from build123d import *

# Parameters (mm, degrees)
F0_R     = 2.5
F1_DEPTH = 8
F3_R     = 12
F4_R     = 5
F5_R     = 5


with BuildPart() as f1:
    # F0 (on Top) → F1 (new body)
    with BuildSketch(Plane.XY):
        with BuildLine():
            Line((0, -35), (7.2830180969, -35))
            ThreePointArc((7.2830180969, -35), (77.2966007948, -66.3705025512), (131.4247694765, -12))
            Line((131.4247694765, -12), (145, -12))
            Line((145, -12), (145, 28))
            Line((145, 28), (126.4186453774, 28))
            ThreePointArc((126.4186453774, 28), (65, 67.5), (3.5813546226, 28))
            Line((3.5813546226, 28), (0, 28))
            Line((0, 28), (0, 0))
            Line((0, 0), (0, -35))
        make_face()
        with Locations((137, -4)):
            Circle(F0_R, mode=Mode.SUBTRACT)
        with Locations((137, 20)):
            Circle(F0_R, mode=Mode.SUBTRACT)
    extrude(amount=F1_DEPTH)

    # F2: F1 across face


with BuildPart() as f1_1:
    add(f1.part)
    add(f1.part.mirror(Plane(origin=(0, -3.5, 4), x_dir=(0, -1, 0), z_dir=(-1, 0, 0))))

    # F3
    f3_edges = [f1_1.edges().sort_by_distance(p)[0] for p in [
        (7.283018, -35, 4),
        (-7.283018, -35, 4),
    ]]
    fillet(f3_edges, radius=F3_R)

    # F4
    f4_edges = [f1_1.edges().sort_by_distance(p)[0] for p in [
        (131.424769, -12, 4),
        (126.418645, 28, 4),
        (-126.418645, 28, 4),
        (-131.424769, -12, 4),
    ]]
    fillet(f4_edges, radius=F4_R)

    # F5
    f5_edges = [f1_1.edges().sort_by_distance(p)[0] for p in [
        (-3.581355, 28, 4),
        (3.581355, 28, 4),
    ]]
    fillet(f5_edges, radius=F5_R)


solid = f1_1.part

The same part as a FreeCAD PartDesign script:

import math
import FreeCAD as App
import Part
import Sketcher


def edges_at(feature, points):
    """Names of the edges that pass closest to the given points."""
    edges = feature.Shape.Edges
    near = lambda p: min(range(len(edges)), key=lambda i: edges[i].distToShape(Part.Vertex(*p))[0])
    return sorted({f"Edge{near(p) + 1}" for p in points})

doc = App.newDocument("Part")
params = doc.addObject("Spreadsheet::Sheet", "Params")
for row, (alias, value) in enumerate([
    ("sketch1_diameter", "5 mm"),
    ("sketch1_radius", "67.5 mm"),
    ("sketch1_height", "40 mm"),
    ("sketch1_height2", "63 mm"),
    ("pad1_length", "8 mm"),
    ("fillet_radius", "12 mm"),
    ("fillet2_radius", "5 mm"),
    ("fillet3_radius", "5 mm"),
], start=1):
    params.set(f"A{row}", alias)
    params.set(f"B{row}", "=" + value)
    params.setAlias(f"B{row}", alias)

body = doc.addObject("PartDesign::Body", "Body")

sketch1 = body.newObject("Sketcher::SketchObject", "Sketch")
sketch1.AttachmentSupport = (doc.getObject("XY_Plane"), [""])
sketch1.MapMode = "FlatFace"
sketch1.addGeometry(Part.LineSegment(App.Vector(0, -35, 0), App.Vector(7.3, -35, 0)), False)
sketch1.addGeometry(Part.ArcOfCircle(Part.Circle(App.Vector(65, 0, 0), App.Vector(0, 0, 1), 67.5), math.radians(-149), math.radians(-10)), False)
sketch1.addGeometry(Part.LineSegment(App.Vector(131.4, -12, 0), App.Vector(145, -12, 0)), False)
sketch1.addGeometry(Part.LineSegment(App.Vector(145, -12, 0), App.Vector(145, 28, 0)), False)
sketch1.addGeometry(Part.LineSegment(App.Vector(145, 28, 0), App.Vector(126.4, 28, 0)), False)
sketch1.addGeometry(Part.ArcOfCircle(Part.Circle(App.Vector(65, 0, 0), App.Vector(0, 0, 1), 67.5), math.radians(25), math.radians(155)), False)
sketch1.addGeometry(Part.LineSegment(App.Vector(3.6, 28, 0), App.Vector(0, 28, 0)), False)
sketch1.addGeometry(Part.LineSegment(App.Vector(0, 28, 0), App.Vector(0, -35, 0)), False)
sketch1.addGeometry(Part.Circle(App.Vector(137, -4, 0), App.Vector(0, 0, 1), 2.5), False)
sketch1.addGeometry(Part.Circle(App.Vector(137, 20, 0), App.Vector(0, 0, 1), 2.5), False)
sketch1.addConstraint(Sketcher.Constraint("Coincident", 0, 2, 1, 1))
sketch1.addConstraint(Sketcher.Constraint("Coincident", 1, 2, 2, 1))
sketch1.addConstraint(Sketcher.Constraint("Coincident", 2, 2, 3, 1))
sketch1.addConstraint(Sketcher.Constraint("Coincident", 3, 2, 4, 1))
sketch1.addConstraint(Sketcher.Constraint("Coincident", 4, 2, 5, 1))
sketch1.addConstraint(Sketcher.Constraint("Coincident", 5, 2, 6, 1))
sketch1.addConstraint(Sketcher.Constraint("Coincident", 6, 2, 7, 1))
sketch1.addConstraint(Sketcher.Constraint("Coincident", 7, 2, 0, 1))
sketch1.addConstraint(Sketcher.Constraint("Horizontal", 0))
sketch1.addConstraint(Sketcher.Constraint("Horizontal", 2))
sketch1.addConstraint(Sketcher.Constraint("Vertical", 3))
sketch1.addConstraint(Sketcher.Constraint("Horizontal", 4))
sketch1.addConstraint(Sketcher.Constraint("Horizontal", 6))
sketch1.addConstraint(Sketcher.Constraint("Vertical", 7))
sketch1.addConstraint(Sketcher.Constraint("Coincident", 5, 3, 1, 3))
sketch1.addConstraint(Sketcher.Constraint("Equal", 1, 5))
sketch1.addConstraint(Sketcher.Constraint("Equal", 8, 9))
sketch1.addConstraint(Sketcher.Constraint("PointOnObject", 1, 3, -1))
sketch1.addConstraint(Sketcher.Constraint("PointOnObject", 6, 2, -2))
sketch1.addConstraint(Sketcher.Constraint("Horizontal", 4, 2, 5, 2))
sketch1.addConstraint(Sketcher.Constraint("Vertical", 8, 3, 9, 3))
sketch1.addConstraint(Sketcher.Constraint("Diameter", 8, 5.0))
sketch1.addConstraint(Sketcher.Constraint("Radius", 1, 67.5))
sketch1.addConstraint(Sketcher.Constraint("DistanceY", 3, 1, 3, 2, 40.0))
sketch1.addConstraint(Sketcher.Constraint("DistanceY", 7, 2, 7, 1, 63.0))
sketch1.addConstraint(Sketcher.Constraint("DistanceX", -1, 1, 1, 3, 65.0))
sketch1.addConstraint(Sketcher.Constraint("DistanceX", -1, 1, 8, 3, 137.0))
sketch1.addConstraint(Sketcher.Constraint("DistanceY", 8, 3, -1, 1, 4.0))
sketch1.addConstraint(Sketcher.Constraint("DistanceY", -1, 1, 9, 3, 20.0))
sketch1.addConstraint(Sketcher.Constraint("DistanceY", 0, 2, -1, 1, 35.0))
sketch1.addConstraint(Sketcher.Constraint("DistanceX", -1, 1, 2, 2, 145.0))
sketch1.setExpression("Constraints[21]", "Params.sketch1_diameter")
sketch1.setExpression("Constraints[22]", "Params.sketch1_radius")
sketch1.setExpression("Constraints[23]", "Params.sketch1_height")
sketch1.setExpression("Constraints[24]", "Params.sketch1_height2")
pad1 = body.newObject("PartDesign::Pad", "Pad")
pad1.Profile = sketch1
pad1.setExpression("Length", "Params.pad1_length")
body2 = doc.addObject("PartDesign::Body", "Body001")
doc.recompute()

body2.BaseFeature = body
doc.recompute()

mirroring = doc.addObject("Part::Mirroring", "Mirroring")
mirroring.Source = body
mirroring.Base = App.Vector(0, -3.5, 4)
mirroring.Normal = App.Vector(-1, 0, 0)
body3 = doc.addObject("PartDesign::Body", "Body002")
body3.BaseFeature = mirroring
boolean = body2.newObject("PartDesign::Boolean", "Boolean")
boolean.Type = "Fuse"
boolean.addObjects([body3])
doc.recompute()

fillet = body2.newObject("PartDesign::Fillet", "Fillet")
fillet.Base = (boolean, edges_at(boolean, [(7.283, -35, 4), (-7.283, -35, 4)]))
fillet.setExpression("Radius", "Params.fillet_radius")
doc.recompute()

fillet2 = body2.newObject("PartDesign::Fillet", "Fillet001")
fillet2.Base = (fillet, edges_at(fillet, [
    (131.425, -12, 4),
    (126.419, 28, 4),
    (-126.419, 28, 4),
    (-131.425, -12, 4),
]))
fillet2.setExpression("Radius", "Params.fillet2_radius")
doc.recompute()

fillet3 = body2.newObject("PartDesign::Fillet", "Fillet002")
fillet3.Base = (fillet2, edges_at(fillet2, [(-3.581, 28, 4), (3.581, 28, 4)]))
fillet3.setExpression("Radius", "Params.fillet3_radius")
mirroring.Visibility = False

doc.recompute()
